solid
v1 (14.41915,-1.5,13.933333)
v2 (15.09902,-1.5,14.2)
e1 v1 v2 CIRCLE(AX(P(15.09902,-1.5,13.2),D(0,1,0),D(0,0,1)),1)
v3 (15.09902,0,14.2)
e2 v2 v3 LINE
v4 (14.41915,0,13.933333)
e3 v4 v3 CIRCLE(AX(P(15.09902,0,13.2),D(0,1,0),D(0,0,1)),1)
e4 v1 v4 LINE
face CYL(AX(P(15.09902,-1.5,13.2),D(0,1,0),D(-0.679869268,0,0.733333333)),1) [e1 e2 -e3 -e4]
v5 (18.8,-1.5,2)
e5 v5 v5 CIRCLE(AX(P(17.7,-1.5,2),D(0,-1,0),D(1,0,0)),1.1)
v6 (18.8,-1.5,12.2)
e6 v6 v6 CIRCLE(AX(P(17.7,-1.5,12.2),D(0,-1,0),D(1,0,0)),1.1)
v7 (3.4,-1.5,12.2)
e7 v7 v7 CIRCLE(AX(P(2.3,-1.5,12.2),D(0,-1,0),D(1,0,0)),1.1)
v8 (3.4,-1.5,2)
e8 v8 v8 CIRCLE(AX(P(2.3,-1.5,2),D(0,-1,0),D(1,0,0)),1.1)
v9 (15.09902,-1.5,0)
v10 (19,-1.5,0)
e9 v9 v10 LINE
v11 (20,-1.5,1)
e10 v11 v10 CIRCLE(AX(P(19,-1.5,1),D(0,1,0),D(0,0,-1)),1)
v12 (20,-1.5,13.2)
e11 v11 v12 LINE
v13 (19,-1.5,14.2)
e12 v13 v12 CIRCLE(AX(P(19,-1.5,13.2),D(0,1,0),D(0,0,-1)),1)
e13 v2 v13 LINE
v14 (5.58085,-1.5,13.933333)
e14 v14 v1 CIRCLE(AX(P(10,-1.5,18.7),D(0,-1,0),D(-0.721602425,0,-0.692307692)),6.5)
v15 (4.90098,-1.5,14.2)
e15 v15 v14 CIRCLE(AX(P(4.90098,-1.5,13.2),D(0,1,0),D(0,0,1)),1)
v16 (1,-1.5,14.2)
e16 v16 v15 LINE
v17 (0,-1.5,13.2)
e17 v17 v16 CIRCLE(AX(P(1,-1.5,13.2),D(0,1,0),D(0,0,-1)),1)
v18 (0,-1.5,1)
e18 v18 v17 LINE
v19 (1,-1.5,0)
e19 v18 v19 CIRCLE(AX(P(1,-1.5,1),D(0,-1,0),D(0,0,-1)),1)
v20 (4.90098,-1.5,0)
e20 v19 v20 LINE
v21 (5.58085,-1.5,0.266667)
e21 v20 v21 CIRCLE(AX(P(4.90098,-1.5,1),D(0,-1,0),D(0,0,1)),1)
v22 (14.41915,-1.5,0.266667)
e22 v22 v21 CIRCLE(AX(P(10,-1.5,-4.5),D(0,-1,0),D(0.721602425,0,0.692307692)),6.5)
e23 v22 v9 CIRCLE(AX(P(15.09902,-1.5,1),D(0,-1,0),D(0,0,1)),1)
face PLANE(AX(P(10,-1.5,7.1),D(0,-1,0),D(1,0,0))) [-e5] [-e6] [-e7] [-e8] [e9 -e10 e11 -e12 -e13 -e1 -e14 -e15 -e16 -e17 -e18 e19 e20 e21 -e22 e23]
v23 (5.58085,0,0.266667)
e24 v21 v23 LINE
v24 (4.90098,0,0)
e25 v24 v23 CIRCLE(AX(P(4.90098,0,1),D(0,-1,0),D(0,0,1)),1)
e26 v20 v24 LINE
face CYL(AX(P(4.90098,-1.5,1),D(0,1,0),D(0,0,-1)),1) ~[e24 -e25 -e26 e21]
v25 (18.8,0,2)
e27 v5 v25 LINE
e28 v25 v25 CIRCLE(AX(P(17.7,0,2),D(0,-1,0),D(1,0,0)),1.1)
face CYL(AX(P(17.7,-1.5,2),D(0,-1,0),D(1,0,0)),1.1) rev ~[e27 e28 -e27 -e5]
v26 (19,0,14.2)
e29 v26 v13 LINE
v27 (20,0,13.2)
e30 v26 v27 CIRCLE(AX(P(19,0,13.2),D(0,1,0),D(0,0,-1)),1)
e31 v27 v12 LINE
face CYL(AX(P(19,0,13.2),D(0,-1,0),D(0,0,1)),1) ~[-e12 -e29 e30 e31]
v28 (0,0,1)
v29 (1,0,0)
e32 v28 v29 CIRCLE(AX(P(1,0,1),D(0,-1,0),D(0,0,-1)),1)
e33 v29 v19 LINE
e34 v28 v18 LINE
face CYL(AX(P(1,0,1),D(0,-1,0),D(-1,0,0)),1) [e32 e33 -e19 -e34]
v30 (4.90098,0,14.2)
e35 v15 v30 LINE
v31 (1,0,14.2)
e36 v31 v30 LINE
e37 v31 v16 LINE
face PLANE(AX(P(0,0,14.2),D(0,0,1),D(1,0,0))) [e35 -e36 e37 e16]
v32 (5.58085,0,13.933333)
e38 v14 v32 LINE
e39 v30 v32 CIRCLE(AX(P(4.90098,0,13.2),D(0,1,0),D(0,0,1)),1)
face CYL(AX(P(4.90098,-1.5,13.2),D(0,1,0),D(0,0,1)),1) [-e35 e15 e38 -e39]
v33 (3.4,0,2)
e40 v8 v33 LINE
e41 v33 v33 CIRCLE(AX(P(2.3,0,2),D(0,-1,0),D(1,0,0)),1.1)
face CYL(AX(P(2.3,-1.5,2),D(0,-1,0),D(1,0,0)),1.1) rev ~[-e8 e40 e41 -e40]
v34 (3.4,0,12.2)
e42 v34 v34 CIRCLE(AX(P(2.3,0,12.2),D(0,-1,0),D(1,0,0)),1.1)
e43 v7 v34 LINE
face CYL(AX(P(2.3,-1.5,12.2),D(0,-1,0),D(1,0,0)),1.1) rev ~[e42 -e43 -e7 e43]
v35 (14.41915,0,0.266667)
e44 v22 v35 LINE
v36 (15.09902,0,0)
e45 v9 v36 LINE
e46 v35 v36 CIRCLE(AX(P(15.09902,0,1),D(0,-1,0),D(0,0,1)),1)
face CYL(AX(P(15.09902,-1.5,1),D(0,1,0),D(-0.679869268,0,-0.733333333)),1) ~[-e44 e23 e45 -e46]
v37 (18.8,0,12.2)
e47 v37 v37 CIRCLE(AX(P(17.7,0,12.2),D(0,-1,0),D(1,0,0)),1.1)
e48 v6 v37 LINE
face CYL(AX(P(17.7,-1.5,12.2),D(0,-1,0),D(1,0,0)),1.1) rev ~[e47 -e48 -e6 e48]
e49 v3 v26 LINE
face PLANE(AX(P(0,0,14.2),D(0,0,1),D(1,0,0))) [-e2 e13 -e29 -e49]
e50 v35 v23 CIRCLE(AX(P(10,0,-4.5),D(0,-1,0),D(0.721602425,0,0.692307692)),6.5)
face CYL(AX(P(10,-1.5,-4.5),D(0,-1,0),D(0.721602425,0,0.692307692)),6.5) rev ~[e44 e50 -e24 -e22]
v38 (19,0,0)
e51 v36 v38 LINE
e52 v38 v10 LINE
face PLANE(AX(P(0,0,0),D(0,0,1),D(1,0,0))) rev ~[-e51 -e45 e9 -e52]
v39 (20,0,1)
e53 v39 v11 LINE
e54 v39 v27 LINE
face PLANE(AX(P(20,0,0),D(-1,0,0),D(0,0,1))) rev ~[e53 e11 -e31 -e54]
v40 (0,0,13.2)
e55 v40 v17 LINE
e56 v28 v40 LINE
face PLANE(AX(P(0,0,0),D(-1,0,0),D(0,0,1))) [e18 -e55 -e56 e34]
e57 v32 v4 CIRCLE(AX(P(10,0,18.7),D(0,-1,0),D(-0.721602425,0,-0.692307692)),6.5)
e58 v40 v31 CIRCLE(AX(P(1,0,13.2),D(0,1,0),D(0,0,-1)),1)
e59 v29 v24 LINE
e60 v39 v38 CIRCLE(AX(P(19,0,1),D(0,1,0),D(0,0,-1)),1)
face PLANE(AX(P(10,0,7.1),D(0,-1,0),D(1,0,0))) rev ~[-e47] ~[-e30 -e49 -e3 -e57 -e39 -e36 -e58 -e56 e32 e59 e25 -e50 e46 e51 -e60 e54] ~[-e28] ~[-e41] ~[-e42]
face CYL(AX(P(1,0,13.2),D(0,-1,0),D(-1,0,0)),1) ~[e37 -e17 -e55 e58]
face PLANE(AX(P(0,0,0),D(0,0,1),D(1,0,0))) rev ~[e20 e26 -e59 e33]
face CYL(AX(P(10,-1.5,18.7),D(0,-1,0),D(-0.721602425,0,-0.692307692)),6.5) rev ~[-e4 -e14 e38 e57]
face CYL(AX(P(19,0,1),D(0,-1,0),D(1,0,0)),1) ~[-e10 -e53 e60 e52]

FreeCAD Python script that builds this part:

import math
import FreeCAD as App
import Part
import Sketcher


def edges_at(feature, points):
    """Names of the edges that pass closest to the given points."""
    edges = feature.Shape.Edges
    near = lambda p: min(range(len(edges)), key=lambda i: edges[i].distToShape(Part.Vertex(*p))[0])
    return sorted({f"Edge{near(p) + 1}" for p in points})

doc = App.newDocument("Part")
body = doc.addObject("PartDesign::Body", "Body")

# Sketch on XZ plane
sketch1 = body.newObject("Sketcher::SketchObject", "Sketch")
sketch1.AttachmentSupport = (doc.getObject("XZ_Plane"), [""])
sketch1.MapMode = "FlatFace"
sketch1.addGeometry(Part.LineSegment(App.Vector(0, 14.2, 0), App.Vector(0, 0, 0)), False)
sketch1.addGeometry(Part.LineSegment(App.Vector(0, 0, 0), App.Vector(20, 0, 0)), False)
sketch1.addGeometry(Part.LineSegment(App.Vector(20, 0, 0), App.Vector(20, 14.2, 0)), False)
sketch1.addGeometry(Part.LineSegment(App.Vector(20, 14.2, 0), App.Vector(0, 14.2, 0)), False)
sketch1.addConstraint(Sketcher.Constraint("Coincident", 0, 2, 1, 1))
sketch1.addConstraint(Sketcher.Constraint("Coincident", 1, 2, 2, 1))
sketch1.addConstraint(Sketcher.Constraint("Coincident", 2, 2, 3, 1))
sketch1.addConstraint(Sketcher.Constraint("Coincident", 3, 2, 0, 1))
sketch1.addConstraint(Sketcher.Constraint("Vertical", 0))
sketch1.addConstraint(Sketcher.Constraint("Horizontal", 1))
sketch1.addConstraint(Sketcher.Constraint("Vertical", 2))
sketch1.addConstraint(Sketcher.Constraint("Horizontal", 3))
sketch1.addConstraint(Sketcher.Constraint("Coincident", 0, 2, -1, 1))
sketch1.addConstraint(Sketcher.Constraint("DistanceX", 1, 1, 1, 2, 20.0))
sketch1.addConstraint(Sketcher.Constraint("DistanceY", 0, 2, 0, 1, 14.2))
pad1 = body.newObject("PartDesign::Pad", "Pad")
pad1.Profile = sketch1
pad1.Length = 1.5

# Sketch on XZ plane
sketch2 = body.newObject("Sketcher::SketchObject", "Sketch001")
sketch2.AttachmentSupport = (doc.getObject("XZ_Plane"), [""])
sketch2.MapMode = "FlatFace"
sketch2.AttachmentOffset = App.Placement(App.Vector(0, 0, 1.5), App.Rotation())
sketch2.addGeometry(Part.Circle(App.Vector(2.3, 12.2, 0), App.Vector(0, 0, 1), 1.1), False)
sketch2.addGeometry(Part.Circle(App.Vector(17.7, 12.2, 0), App.Vector(0, 0, 1), 1.1), False)
sketch2.addGeometry(Part.Circle(App.Vector(2.3, 2, 0), App.Vector(0, 0, 1), 1.1), False)
sketch2.addGeometry(Part.Circle(App.Vector(17.7, 2, 0), App.Vector(0, 0, 1), 1.1), False)
sketch2.addGeometry(Part.LineSegment(App.Vector(14.690416, 14.2, 0), App.Vector(5.309584, 14.2, 0)), False)
sketch2.addGeometry(Part.ArcOfCircle(Part.Circle(App.Vector(10, 18.7, 0), App.Vector(0, 0, 1), 6.5), math.radians(-136.186939), math.radians(-43.813061)), False)
sketch2.addGeometry(Part.ArcOfCircle(Part.Circle(App.Vector(10, -4.5, 0), App.Vector(0, 0, 1), 6.5), math.radians(43.813061), math.radians(136.186939)), False)
sketch2.addGeometry(Part.LineSegment(App.Vector(5.309584, 0, 0), App.Vector(14.690416, 0, 0)), False)
sketch2.addConstraint(Sketcher.Constraint("Coincident", 4, 1, 5, 2))
sketch2.addConstraint(Sketcher.Constraint("Coincident", 5, 1, 4, 2))
sketch2.addConstraint(Sketcher.Constraint("Coincident", 6, 1, 7, 2))
sketch2.addConstraint(Sketcher.Constraint("Coincident", 7, 1, 6, 2))
sketch2.addConstraint(Sketcher.Constraint("Horizontal", 4))
sketch2.addConstraint(Sketcher.Constraint("Horizontal", 7))
sketch2.addConstraint(Sketcher.Constraint("Equal", 0, 1))
sketch2.addConstraint(Sketcher.Constraint("Equal", 1, 2))
sketch2.addConstraint(Sketcher.Constraint("Equal", 2, 3))
sketch2.addConstraint(Sketcher.Constraint("Equal", 5, 6))
sketch2.addConstraint(Sketcher.Constraint("PointOnObject", 6, 1, -1))
sketch2.addConstraint(Sketcher.Constraint("Horizontal", 0, 3, 1, 3))
sketch2.addConstraint(Sketcher.Constraint("Horizontal", 2, 3, 3, 3))
sketch2.addConstraint(Sketcher.Constraint("Vertical", 0, 3, 2, 3))
sketch2.addConstraint(Sketcher.Constraint("Vertical", 1, 3, 3, 3))
sketch2.addConstraint(Sketcher.Constraint("Vertical", 5, 3, 6, 3))
sketch2.addConstraint(Sketcher.Constraint("Vertical", 4, 1, 6, 1))
sketch2.addConstraint(Sketcher.Constraint("Diameter", 0, 2.2))
sketch2.addConstraint(Sketcher.Constraint("Radius", 5, 6.5))
sketch2.addConstraint(Sketcher.Constraint("DistanceY", -1, 1, 2, 3, 2.0))
sketch2.addConstraint(Sketcher.Constraint("DistanceX", -1, 1, 5, 3, 10.0))
sketch2.addConstraint(Sketcher.Constraint("DistanceY", 1, 3, 4, 1, 2.0))
sketch2.addConstraint(Sketcher.Constraint("DistanceX", -1, 1, 0, 3, 2.3))
sketch2.addConstraint(Sketcher.Constraint("DistanceY", -1, 1, 0, 3, 12.2))
sketch2.addConstraint(Sketcher.Constraint("DistanceX", -1, 1, 1, 3, 17.7))
sketch2.addConstraint(Sketcher.Constraint("DistanceY", -1, 1, 5, 3, 18.7))
pocket1 = body.newObject("PartDesign::Pocket", "Pocket")
pocket1.Profile = sketch2
pocket1.Type = "ThroughAll"
doc.recompute()

fillet = body.newObject("PartDesign::Fillet", "Fillet")
fillet.Base = (pocket1, edges_at(pocket1, [
    (20, -0.75, 14.2),
    (20, -0.75, 0),
    (0, -0.75, 14.2),
    (0, -0.75, 0),
    (5.31, -0.75, 14.2),
    (14.69, -0.75, 14.2),
    (5.31, -0.75, 0),
    (14.69, -0.75, 0),
]))
fillet.Radius = 1

doc.recompute()
